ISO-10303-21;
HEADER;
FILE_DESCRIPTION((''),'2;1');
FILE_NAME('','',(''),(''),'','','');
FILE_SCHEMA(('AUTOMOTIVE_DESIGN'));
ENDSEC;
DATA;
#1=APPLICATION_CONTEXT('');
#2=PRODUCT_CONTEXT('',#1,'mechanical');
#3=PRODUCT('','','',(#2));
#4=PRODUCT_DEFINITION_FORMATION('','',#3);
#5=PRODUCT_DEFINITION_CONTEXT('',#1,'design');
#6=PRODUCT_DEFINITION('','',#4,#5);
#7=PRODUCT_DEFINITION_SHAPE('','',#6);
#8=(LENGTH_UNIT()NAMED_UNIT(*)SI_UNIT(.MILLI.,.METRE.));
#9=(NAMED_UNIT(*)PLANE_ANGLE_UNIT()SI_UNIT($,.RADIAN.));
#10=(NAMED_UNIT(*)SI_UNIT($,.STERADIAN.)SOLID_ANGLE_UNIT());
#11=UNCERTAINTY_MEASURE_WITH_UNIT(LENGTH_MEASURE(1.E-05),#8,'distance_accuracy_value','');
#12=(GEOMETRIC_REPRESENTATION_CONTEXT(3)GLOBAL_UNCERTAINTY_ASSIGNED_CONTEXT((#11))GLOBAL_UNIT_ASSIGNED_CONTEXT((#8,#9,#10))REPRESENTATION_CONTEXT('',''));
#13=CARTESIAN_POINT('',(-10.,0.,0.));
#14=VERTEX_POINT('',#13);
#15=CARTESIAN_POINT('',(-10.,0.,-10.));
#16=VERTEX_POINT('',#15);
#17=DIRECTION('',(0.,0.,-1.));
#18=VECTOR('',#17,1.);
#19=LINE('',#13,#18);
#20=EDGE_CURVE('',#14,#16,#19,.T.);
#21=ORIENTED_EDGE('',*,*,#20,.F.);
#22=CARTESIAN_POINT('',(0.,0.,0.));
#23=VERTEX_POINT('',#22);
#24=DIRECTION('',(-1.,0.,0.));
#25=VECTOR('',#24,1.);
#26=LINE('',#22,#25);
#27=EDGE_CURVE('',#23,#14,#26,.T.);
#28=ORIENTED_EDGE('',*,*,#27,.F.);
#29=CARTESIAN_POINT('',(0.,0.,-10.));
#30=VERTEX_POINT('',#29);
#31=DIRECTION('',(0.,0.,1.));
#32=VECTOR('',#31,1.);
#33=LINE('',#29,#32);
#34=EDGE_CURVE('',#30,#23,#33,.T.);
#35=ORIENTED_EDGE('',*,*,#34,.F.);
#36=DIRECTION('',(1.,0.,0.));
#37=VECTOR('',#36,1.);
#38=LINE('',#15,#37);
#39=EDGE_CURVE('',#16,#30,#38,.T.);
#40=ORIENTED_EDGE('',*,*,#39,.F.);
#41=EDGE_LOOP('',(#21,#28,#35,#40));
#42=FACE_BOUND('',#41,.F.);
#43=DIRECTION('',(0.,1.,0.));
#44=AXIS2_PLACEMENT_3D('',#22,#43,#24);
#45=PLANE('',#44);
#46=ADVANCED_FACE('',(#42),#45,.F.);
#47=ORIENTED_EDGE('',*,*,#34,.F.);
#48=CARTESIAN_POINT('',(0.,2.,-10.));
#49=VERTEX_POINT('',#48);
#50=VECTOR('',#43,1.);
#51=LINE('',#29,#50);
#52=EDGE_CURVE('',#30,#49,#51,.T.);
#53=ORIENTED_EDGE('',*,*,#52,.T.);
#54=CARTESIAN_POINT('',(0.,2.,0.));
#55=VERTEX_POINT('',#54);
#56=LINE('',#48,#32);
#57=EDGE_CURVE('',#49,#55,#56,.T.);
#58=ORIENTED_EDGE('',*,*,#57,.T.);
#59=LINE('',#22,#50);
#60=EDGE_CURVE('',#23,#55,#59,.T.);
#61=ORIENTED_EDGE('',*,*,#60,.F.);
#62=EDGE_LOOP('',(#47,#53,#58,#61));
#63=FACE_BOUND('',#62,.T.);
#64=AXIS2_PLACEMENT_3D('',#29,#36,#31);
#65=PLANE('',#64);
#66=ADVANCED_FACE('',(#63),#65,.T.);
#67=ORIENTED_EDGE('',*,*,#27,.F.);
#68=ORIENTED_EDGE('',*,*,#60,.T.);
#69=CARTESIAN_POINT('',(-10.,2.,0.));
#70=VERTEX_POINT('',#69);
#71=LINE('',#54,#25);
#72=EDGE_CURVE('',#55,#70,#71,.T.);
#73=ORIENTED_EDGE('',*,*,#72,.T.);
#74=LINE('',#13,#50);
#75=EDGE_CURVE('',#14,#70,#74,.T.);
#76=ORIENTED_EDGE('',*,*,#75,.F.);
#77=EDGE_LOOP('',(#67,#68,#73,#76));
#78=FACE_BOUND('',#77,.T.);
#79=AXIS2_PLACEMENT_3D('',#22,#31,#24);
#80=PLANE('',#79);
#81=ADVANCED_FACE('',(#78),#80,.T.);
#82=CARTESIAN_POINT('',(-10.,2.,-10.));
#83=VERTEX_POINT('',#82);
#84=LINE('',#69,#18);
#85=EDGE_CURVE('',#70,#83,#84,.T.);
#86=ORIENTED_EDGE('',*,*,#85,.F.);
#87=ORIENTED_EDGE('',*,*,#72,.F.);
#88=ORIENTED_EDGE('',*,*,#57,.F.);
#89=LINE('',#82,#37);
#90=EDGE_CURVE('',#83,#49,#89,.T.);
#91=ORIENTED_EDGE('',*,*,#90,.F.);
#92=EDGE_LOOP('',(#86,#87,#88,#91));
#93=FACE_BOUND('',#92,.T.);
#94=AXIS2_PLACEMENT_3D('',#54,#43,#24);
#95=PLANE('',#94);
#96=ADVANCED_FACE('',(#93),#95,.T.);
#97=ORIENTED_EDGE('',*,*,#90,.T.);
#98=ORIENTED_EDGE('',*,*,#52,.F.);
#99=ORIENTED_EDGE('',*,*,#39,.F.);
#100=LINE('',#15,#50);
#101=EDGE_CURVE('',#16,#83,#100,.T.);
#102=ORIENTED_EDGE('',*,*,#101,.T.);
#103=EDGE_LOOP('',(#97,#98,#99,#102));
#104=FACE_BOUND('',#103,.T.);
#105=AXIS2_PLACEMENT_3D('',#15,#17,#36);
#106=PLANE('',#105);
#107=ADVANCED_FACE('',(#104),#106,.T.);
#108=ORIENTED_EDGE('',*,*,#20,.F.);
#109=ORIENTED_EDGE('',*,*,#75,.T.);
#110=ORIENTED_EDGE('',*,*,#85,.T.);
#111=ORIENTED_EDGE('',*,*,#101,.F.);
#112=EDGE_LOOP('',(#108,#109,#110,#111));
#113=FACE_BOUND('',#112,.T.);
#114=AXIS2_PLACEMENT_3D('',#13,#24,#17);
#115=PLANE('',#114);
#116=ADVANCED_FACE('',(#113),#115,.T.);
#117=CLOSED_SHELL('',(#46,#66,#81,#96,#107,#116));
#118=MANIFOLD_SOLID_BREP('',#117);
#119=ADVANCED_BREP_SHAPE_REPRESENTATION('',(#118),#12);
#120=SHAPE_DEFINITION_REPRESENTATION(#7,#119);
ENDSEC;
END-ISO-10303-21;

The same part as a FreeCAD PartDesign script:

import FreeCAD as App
import Part
import Sketcher

V = App.Vector
Q = App.Units.Quantity


def add_polygon(sketch, points):
    """Adds a closed chain of lines whose ends are joined by coincident constraints."""
    first, n = sketch.GeometryCount, len(points)
    for a, b in zip(points, points[1:] + points[:1]):
        sketch.addGeometry(Part.LineSegment(App.Vector(*a, 0), App.Vector(*b, 0)), False)
    for i in range(n):
        sketch.addConstraint(Sketcher.Constraint("Coincident", first + i, 2, first + (i + 1) % n, 1))

doc = App.newDocument("Part")
body = doc.addObject("PartDesign::Body", "Body")

sketch1 = doc.addObject("Sketcher::SketchObject", "Sketch")
body.addObject(sketch1)
sketch1.AttachmentSupport = (doc.XZ_Plane, [""])
sketch1.MapMode = "FlatFace"
add_polygon(sketch1, [(-10, 0), (0, 0), (0, -10), (-10, -10)])
sketch1.addConstraint([
    Sketcher.Constraint("Horizontal", 0),
    Sketcher.Constraint("Vertical", 1),
    Sketcher.Constraint("Horizontal", 2),
    Sketcher.Constraint("Vertical", 3),
    Sketcher.Constraint("Coincident", 0, 2, -1, 1),
    Sketcher.Constraint("Equal", 2, 1),
    Sketcher.Constraint("DistanceX", 0, 1, 0, 2, Q("10 mm")),
])
pad1 = doc.addObject("PartDesign::Pad", "Pad")
body.addObject(pad1)
pad1.Profile = sketch1
pad1.Length = 2
pad1.Reversed = True

doc.recompute()
